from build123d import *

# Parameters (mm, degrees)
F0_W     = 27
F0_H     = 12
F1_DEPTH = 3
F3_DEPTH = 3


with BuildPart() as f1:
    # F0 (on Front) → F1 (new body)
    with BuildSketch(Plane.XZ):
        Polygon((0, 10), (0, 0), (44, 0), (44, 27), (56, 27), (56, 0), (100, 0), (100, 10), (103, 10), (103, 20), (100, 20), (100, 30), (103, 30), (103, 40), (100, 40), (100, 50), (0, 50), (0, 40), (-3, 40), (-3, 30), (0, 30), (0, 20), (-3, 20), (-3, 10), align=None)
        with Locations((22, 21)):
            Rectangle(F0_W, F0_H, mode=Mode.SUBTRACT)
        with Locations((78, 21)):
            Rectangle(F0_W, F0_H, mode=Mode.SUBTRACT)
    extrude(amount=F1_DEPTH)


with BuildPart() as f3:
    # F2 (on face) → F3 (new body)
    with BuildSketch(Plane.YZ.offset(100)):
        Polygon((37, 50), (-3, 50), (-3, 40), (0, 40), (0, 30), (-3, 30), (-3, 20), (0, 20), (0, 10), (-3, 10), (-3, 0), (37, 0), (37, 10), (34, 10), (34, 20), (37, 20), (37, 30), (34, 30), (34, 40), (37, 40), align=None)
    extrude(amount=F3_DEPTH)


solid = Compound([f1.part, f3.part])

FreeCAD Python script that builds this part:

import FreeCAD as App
import Part
import Sketcher
from FreeCAD import Vector

doc = App.newDocument("Part")
body = doc.addObject("PartDesign::Body", "Body")

# Sketch on XZ plane
sketch1 = doc.addObject("Sketcher::SketchObject", "Sketch")
body.addObject(sketch1)
sketch1.AttachmentSupport = (doc.XZ_Plane, [""])
sketch1.MapMode = "FlatFace"
sketch1.addGeometry([
    Part.LineSegment(Vector(0, 10, 0), Vector(0, 0, 0)),  # 0
    Part.LineSegment(Vector(0, 0, 0), Vector(44, 0, 0)),  # 1
    Part.LineSegment(Vector(44, 0, 0), Vector(44, 27, 0)),  # 2
    Part.LineSegment(Vector(44, 27, 0), Vector(56, 27, 0)),  # 3
    Part.LineSegment(Vector(56, 27, 0), Vector(56, 0, 0)),  # 4
    Part.LineSegment(Vector(56, 0, 0), Vector(100, 0, 0)),  # 5
    Part.LineSegment(Vector(100, 0, 0), Vector(100, 10, 0)),  # 6
    Part.LineSegment(Vector(100, 10, 0), Vector(103, 10, 0)),  # 7
    Part.LineSegment(Vector(103, 10, 0), Vector(103, 20, 0)),  # 8
    Part.LineSegment(Vector(103, 20, 0), Vector(100, 20, 0)),  # 9
    Part.LineSegment(Vector(100, 20, 0), Vector(100, 30, 0)),  # 10
    Part.LineSegment(Vector(100, 30, 0), Vector(103, 30, 0)),  # 11
    Part.LineSegment(Vector(103, 30, 0), Vector(103, 40, 0)),  # 12
    Part.LineSegment(Vector(103, 40, 0), Vector(100, 40, 0)),  # 13
    Part.LineSegment(Vector(100, 40, 0), Vector(100, 50, 0)),  # 14
    Part.LineSegment(Vector(100, 50, 0), Vector(0, 50, 0)),  # 15
    Part.LineSegment(Vector(0, 50, 0), Vector(0, 40, 0)),  # 16
    Part.LineSegment(Vector(0, 40, 0), Vector(-3, 40, 0)),  # 17
    Part.LineSegment(Vector(-3, 40, 0), Vector(-3, 30, 0)),  # 18
    Part.LineSegment(Vector(-3, 30, 0), Vector(0, 30, 0)),  # 19
    Part.LineSegment(Vector(0, 30, 0), Vector(0, 20, 0)),  # 20
    Part.LineSegment(Vector(0, 20, 0), Vector(-3, 20, 0)),  # 21
    Part.LineSegment(Vector(-3, 20, 0), Vector(-3, 10, 0)),  # 22
    Part.LineSegment(Vector(-3, 10, 0), Vector(0, 10, 0)),  # 23
    Part.LineSegment(Vector(35.5, 15, 0), Vector(8.5, 15, 0)),  # 24
    Part.LineSegment(Vector(8.5, 15, 0), Vector(8.5, 27, 0)),  # 25
    Part.LineSegment(Vector(8.5, 27, 0), Vector(35.5, 27, 0)),  # 26
    Part.LineSegment(Vector(35.5, 27, 0), Vector(35.5, 15, 0)),  # 27
    Part.LineSegment(Vector(91.5, 15, 0), Vector(64.5, 15, 0)),  # 28
    Part.LineSegment(Vector(64.5, 15, 0), Vector(64.5, 27, 0)),  # 29
    Part.LineSegment(Vector(64.5, 27, 0), Vector(91.5, 27, 0)),  # 30
    Part.LineSegment(Vector(91.5, 27, 0), Vector(91.5, 15, 0)),  # 31
], False)
sketch1.addConstraint([
    Sketcher.Constraint("Coincident", 0, 2, 1, 1),
    Sketcher.Constraint("Coincident", 1, 2, 2, 1),
    Sketcher.Constraint("Coincident", 2, 2, 3, 1),
    Sketcher.Constraint("Coincident", 3, 2, 4, 1),
    Sketcher.Constraint("Coincident", 4, 2, 5, 1),
    Sketcher.Constraint("Coincident", 5, 2, 6, 1),
    Sketcher.Constraint("Coincident", 6, 2, 7, 1),
    Sketcher.Constraint("Coincident", 7, 2, 8, 1),
    Sketcher.Constraint("Coincident", 8, 2, 9, 1),
    Sketcher.Constraint("Coincident", 9, 2, 10, 1),
    Sketcher.Constraint("Coincident", 10, 2, 11, 1),
    Sketcher.Constraint("Coincident", 11, 2, 12, 1),
    Sketcher.Constraint("Coincident", 12, 2, 13, 1),
    Sketcher.Constraint("Coincident", 13, 2, 14, 1),
    Sketcher.Constraint("Coincident", 14, 2, 15, 1),
    Sketcher.Constraint("Coincident", 15, 2, 16, 1),
    Sketcher.Constraint("Coincident", 16, 2, 17, 1),
    Sketcher.Constraint("Coincident", 17, 2, 18, 1),
    Sketcher.Constraint("Coincident", 18, 2, 19, 1),
    Sketcher.Constraint("Coincident", 19, 2, 20, 1),
    Sketcher.Constraint("Coincident", 20, 2, 21, 1),
    Sketcher.Constraint("Coincident", 21, 2, 22, 1),
    Sketcher.Constraint("Coincident", 22, 2, 23, 1),
    Sketcher.Constraint("Coincident", 23, 2, 0, 1),
    Sketcher.Constraint("Coincident", 24, 2, 25, 1),
    Sketcher.Constraint("Coincident", 25, 2, 26, 1),
    Sketcher.Constraint("Coincident", 26, 2, 27, 1),
    Sketcher.Constraint("Coincident", 27, 2, 24, 1),
    Sketcher.Constraint("Coincident", 28, 2, 29, 1),
    Sketcher.Constraint("Coincident", 29, 2, 30, 1),
    Sketcher.Constraint("Coincident", 30, 2, 31, 1),
    Sketcher.Constraint("Coincident", 31, 2, 28, 1),
    Sketcher.Constraint("Vertical", 0),
    Sketcher.Constraint("Horizontal", 1),
    Sketcher.Constraint("Vertical", 2),
    Sketcher.Constraint("Horizontal", 3),
    Sketcher.Constraint("Vertical", 4),
    Sketcher.Constraint("Horizontal", 5),
    Sketcher.Constraint("Vertical", 6),
    Sketcher.Constraint("Horizontal", 7),
    Sketcher.Constraint("Vertical", 8),
    Sketcher.Constraint("Horizontal", 9),
    Sketcher.Constraint("Vertical", 10),
    Sketcher.Constraint("Horizontal", 11),
    Sketcher.Constraint("Vertical", 12),
    Sketcher.Constraint("Horizontal", 13),
    Sketcher.Constraint("Vertical", 14),
    Sketcher.Constraint("Horizontal", 15),
    Sketcher.Constraint("Vertical", 16),
    Sketcher.Constraint("Horizontal", 17),
    Sketcher.Constraint("Vertical", 18),
    Sketcher.Constraint("Horizontal", 19),
    Sketcher.Constraint("Vertical", 20),
    Sketcher.Constraint("Horizontal", 21),
    Sketcher.Constraint("Vertical", 22),
    Sketcher.Constraint("Horizontal", 23),
    Sketcher.Constraint("Horizontal", 24),
    Sketcher.Constraint("Vertical", 25),
    Sketcher.Constraint("Horizontal", 26),
    Sketcher.Constraint("Vertical", 27),
    Sketcher.Constraint("Horizontal", 28),
    Sketcher.Constraint("Vertical", 29),
    Sketcher.Constraint("Horizontal", 30),
    Sketcher.Constraint("Vertical", 31),
    Sketcher.Constraint("Coincident", 0, 2, -1, 1),
    Sketcher.Constraint("PointOnObject", 4, 2, -1),
    Sketcher.Constraint("PointOnObject", 15, 2, -2),
    Sketcher.Constraint("PointOnObject", 19, 2, -2),
    Sketcher.Constraint("Horizontal", 13, 2, 16, 2),
    Sketcher.Constraint("Horizontal", 11, 2, 18, 2),
    Sketcher.Constraint("Horizontal", 9, 2, 20, 2),
    Sketcher.Constraint("Horizontal", 7, 2, 22, 2),
    Sketcher.Constraint("Horizontal", 3, 2, 25, 2),
    Sketcher.Constraint("Horizontal", 27, 2, 28, 2),
    Sketcher.Constraint("Horizontal", 26, 2, 29, 2),
    Sketcher.Constraint("Vertical", 6, 2, 9, 2),
    Sketcher.Constraint("Vertical", 8, 2, 11, 2),
    Sketcher.Constraint("Vertical", 10, 2, 13, 2),
    Sketcher.Constraint("Vertical", 18, 2, 21, 2),
    Sketcher.Constraint("Equal", 1, 5),
    Sketcher.Constraint("Equal", 13, 17),
    Sketcher.Constraint("Equal", 26, 28),
    Sketcher.Constraint("Equal", 30, 2),
    Sketcher.Constraint("Equal", 6, 8),
    Sketcher.Constraint("Equal", 8, 10),
    Sketcher.Constraint("Equal", 10, 12),
    Sketcher.Constraint("Equal", 12, 14),
    Sketcher.Constraint("Equal", 3, 25),
    Sketcher.Constraint("DistanceX", 1, 1, 1, 2, 44.0),
    Sketcher.Constraint("DistanceX", 3, 1, 3, 2, 12.0),
    Sketcher.Constraint("DistanceX", 7, 1, 7, 2, 3.0),
    Sketcher.Constraint("DistanceX", 24, 2, 24, 1, 27.0),
    Sketcher.Constraint("DistanceY", 0, 2, 0, 1, 10.0),
    Sketcher.Constraint("DistanceX", 27, 2, 28, 2, 29.0),
    Sketcher.Constraint("DistanceX", -1, 1, 24, 2, 8.5),
])
pad1 = doc.addObject("PartDesign::Pad", "Pad")
body.addObject(pad1)
pad1.Profile = sketch1
pad1.Length = 3
body2 = doc.addObject("PartDesign::Body", "Body001")

# Sketch on YZ plane
sketch2 = doc.addObject("Sketcher::SketchObject", "Sketch001")
body2.addObject(sketch2)
sketch2.AttachmentSupport = (doc.getObject("YZ_Plane001"), [""])
sketch2.MapMode = "FlatFace"
sketch2.AttachmentOffset = App.Placement(Vector(0, 0, 100), App.Rotation())
sketch2.addGeometry([
    Part.LineSegment(Vector(37, 50, 0), Vector(-3, 50, 0)),  # 0
    Part.LineSegment(Vector(-3, 50, 0), Vector(-3, 40, 0)),  # 1
    Part.LineSegment(Vector(-3, 40, 0), Vector(0, 40, 0)),  # 2
    Part.LineSegment(Vector(0, 40, 0), Vector(0, 30, 0)),  # 3
    Part.LineSegment(Vector(0, 30, 0), Vector(-3, 30, 0)),  # 4
    Part.LineSegment(Vector(-3, 30, 0), Vector(-3, 20, 0)),  # 5
    Part.LineSegment(Vector(-3, 20, 0), Vector(0, 20, 0)),  # 6
    Part.LineSegment(Vector(0, 20, 0), Vector(0, 10, 0)),  # 7
    Part.LineSegment(Vector(0, 10, 0), Vector(-3, 10, 0)),  # 8
    Part.LineSegment(Vector(-3, 10, 0), Vector(-3, 0, 0)),  # 9
    Part.LineSegment(Vector(-3, 0, 0), Vector(37, 0, 0)),  # 10
    Part.LineSegment(Vector(37, 0, 0), Vector(37, 10, 0)),  # 11
    Part.LineSegment(Vector(37, 10, 0), Vector(34, 10, 0)),  # 12
    Part.LineSegment(Vector(34, 10, 0), Vector(34, 20, 0)),  # 13
    Part.LineSegment(Vector(34, 20, 0), Vector(37, 20, 0)),  # 14
    Part.LineSegment(Vector(37, 20, 0), Vector(37, 30, 0)),  # 15
    Part.LineSegment(Vector(37, 30, 0), Vector(34, 30, 0)),  # 16
    Part.LineSegment(Vector(34, 30, 0), Vector(34, 40, 0)),  # 17
    Part.LineSegment(Vector(34, 40, 0), Vector(37, 40, 0)),  # 18
    Part.LineSegment(Vector(37, 40, 0), Vector(37, 50, 0)),  # 19
], False)
sketch2.addConstraint([
    Sketcher.Constraint("Coincident", 0, 2, 1, 1),
    Sketcher.Constraint("Coincident", 1, 2, 2, 1),
    Sketcher.Constraint("Coincident", 2, 2, 3, 1),
    Sketcher.Constraint("Coincident", 3, 2, 4, 1),
    Sketcher.Constraint("Coincident", 4, 2, 5, 1),
    Sketcher.Constraint("Coincident", 5, 2, 6, 1),
    Sketcher.Constraint("Coincident", 6, 2, 7, 1),
    Sketcher.Constraint("Coincident", 7, 2, 8, 1),
    Sketcher.Constraint("Coincident", 8, 2, 9, 1),
    Sketcher.Constraint("Coincident", 9, 2, 10, 1),
    Sketcher.Constraint("Coincident", 10, 2, 11, 1),
    Sketcher.Constraint("Coincident", 11, 2, 12, 1),
    Sketcher.Constraint("Coincident", 12, 2, 13, 1),
    Sketcher.Constraint("Coincident", 13, 2, 14, 1),
    Sketcher.Constraint("Coincident", 14, 2, 15, 1),
    Sketcher.Constraint("Coincident", 15, 2, 16, 1),
    Sketcher.Constraint("Coincident", 16, 2, 17, 1),
    Sketcher.Constraint("Coincident", 17, 2, 18, 1),
    Sketcher.Constraint("Coincident", 18, 2, 19, 1),
    Sketcher.Constraint("Coincident", 19, 2, 0, 1),
    Sketcher.Constraint("Horizontal", 0),
    Sketcher.Constraint("Vertical", 1),
    Sketcher.Constraint("Horizontal", 2),
    Sketcher.Constraint("Vertical", 3),
    Sketcher.Constraint("Horizontal", 4),
    Sketcher.Constraint("Vertical", 5),
    Sketcher.Constraint("Horizontal", 6),
    Sketcher.Constraint("Vertical", 7),
    Sketcher.Constraint("Horizontal", 8),
    Sketcher.Constraint("Vertical", 9),
    Sketcher.Constraint("Horizontal", 10),
    Sketcher.Constraint("Vertical", 11),
    Sketcher.Constraint("Horizontal", 12),
    Sketcher.Constraint("Vertical", 13),
    Sketcher.Constraint("Horizontal", 14),
    Sketcher.Constraint("Vertical", 15),
    Sketcher.Constraint("Horizontal", 16),
    Sketcher.Constraint("Vertical", 17),
    Sketcher.Constraint("Horizontal", 18),
    Sketcher.Constraint("Vertical", 19),
    Sketcher.Constraint("PointOnObject", 2, 2, -2),
    Sketcher.Constraint("PointOnObject", 6, 2, -2),
    Sketcher.Constraint("PointOnObject", 9, 2, -1),
    Sketcher.Constraint("Horizontal", 8, 2, 11, 2),
    Sketcher.Constraint("Horizontal", 6, 2, 13, 2),
    Sketcher.Constraint("Horizontal", 4, 2, 15, 2),
    Sketcher.Constraint("Horizontal", 2, 2, 17, 2),
    Sketcher.Constraint("Vertical", 1, 2, 4, 2),
    Sketcher.Constraint("Vertical", 5, 2, 8, 2),
    Sketcher.Constraint("Vertical", 11, 2, 14, 2),
    Sketcher.Constraint("Vertical", 13, 2, 16, 2),
    Sketcher.Constraint("Vertical", 15, 2, 18, 2),
    Sketcher.Constraint("Equal", 8, 12),
    Sketcher.Constraint("Equal", 1, 3),
    Sketcher.Constraint("Equal", 3, 5),
    Sketcher.Constraint("Equal", 5, 7),
    Sketcher.Constraint("Equal", 7, 9),
    Sketcher.Constraint("DistanceX", 0, 2, 0, 1, 40.0),
    Sketcher.Constraint("DistanceX", 2, 1, 2, 2, 3.0),
    Sketcher.Constraint("DistanceY", 1, 2, 1, 1, 10.0),
])
pad2 = doc.addObject("PartDesign::Pad", "Pad001")
body2.addObject(pad2)
pad2.Profile = sketch2
pad2.Length = 3

doc.recompute()
